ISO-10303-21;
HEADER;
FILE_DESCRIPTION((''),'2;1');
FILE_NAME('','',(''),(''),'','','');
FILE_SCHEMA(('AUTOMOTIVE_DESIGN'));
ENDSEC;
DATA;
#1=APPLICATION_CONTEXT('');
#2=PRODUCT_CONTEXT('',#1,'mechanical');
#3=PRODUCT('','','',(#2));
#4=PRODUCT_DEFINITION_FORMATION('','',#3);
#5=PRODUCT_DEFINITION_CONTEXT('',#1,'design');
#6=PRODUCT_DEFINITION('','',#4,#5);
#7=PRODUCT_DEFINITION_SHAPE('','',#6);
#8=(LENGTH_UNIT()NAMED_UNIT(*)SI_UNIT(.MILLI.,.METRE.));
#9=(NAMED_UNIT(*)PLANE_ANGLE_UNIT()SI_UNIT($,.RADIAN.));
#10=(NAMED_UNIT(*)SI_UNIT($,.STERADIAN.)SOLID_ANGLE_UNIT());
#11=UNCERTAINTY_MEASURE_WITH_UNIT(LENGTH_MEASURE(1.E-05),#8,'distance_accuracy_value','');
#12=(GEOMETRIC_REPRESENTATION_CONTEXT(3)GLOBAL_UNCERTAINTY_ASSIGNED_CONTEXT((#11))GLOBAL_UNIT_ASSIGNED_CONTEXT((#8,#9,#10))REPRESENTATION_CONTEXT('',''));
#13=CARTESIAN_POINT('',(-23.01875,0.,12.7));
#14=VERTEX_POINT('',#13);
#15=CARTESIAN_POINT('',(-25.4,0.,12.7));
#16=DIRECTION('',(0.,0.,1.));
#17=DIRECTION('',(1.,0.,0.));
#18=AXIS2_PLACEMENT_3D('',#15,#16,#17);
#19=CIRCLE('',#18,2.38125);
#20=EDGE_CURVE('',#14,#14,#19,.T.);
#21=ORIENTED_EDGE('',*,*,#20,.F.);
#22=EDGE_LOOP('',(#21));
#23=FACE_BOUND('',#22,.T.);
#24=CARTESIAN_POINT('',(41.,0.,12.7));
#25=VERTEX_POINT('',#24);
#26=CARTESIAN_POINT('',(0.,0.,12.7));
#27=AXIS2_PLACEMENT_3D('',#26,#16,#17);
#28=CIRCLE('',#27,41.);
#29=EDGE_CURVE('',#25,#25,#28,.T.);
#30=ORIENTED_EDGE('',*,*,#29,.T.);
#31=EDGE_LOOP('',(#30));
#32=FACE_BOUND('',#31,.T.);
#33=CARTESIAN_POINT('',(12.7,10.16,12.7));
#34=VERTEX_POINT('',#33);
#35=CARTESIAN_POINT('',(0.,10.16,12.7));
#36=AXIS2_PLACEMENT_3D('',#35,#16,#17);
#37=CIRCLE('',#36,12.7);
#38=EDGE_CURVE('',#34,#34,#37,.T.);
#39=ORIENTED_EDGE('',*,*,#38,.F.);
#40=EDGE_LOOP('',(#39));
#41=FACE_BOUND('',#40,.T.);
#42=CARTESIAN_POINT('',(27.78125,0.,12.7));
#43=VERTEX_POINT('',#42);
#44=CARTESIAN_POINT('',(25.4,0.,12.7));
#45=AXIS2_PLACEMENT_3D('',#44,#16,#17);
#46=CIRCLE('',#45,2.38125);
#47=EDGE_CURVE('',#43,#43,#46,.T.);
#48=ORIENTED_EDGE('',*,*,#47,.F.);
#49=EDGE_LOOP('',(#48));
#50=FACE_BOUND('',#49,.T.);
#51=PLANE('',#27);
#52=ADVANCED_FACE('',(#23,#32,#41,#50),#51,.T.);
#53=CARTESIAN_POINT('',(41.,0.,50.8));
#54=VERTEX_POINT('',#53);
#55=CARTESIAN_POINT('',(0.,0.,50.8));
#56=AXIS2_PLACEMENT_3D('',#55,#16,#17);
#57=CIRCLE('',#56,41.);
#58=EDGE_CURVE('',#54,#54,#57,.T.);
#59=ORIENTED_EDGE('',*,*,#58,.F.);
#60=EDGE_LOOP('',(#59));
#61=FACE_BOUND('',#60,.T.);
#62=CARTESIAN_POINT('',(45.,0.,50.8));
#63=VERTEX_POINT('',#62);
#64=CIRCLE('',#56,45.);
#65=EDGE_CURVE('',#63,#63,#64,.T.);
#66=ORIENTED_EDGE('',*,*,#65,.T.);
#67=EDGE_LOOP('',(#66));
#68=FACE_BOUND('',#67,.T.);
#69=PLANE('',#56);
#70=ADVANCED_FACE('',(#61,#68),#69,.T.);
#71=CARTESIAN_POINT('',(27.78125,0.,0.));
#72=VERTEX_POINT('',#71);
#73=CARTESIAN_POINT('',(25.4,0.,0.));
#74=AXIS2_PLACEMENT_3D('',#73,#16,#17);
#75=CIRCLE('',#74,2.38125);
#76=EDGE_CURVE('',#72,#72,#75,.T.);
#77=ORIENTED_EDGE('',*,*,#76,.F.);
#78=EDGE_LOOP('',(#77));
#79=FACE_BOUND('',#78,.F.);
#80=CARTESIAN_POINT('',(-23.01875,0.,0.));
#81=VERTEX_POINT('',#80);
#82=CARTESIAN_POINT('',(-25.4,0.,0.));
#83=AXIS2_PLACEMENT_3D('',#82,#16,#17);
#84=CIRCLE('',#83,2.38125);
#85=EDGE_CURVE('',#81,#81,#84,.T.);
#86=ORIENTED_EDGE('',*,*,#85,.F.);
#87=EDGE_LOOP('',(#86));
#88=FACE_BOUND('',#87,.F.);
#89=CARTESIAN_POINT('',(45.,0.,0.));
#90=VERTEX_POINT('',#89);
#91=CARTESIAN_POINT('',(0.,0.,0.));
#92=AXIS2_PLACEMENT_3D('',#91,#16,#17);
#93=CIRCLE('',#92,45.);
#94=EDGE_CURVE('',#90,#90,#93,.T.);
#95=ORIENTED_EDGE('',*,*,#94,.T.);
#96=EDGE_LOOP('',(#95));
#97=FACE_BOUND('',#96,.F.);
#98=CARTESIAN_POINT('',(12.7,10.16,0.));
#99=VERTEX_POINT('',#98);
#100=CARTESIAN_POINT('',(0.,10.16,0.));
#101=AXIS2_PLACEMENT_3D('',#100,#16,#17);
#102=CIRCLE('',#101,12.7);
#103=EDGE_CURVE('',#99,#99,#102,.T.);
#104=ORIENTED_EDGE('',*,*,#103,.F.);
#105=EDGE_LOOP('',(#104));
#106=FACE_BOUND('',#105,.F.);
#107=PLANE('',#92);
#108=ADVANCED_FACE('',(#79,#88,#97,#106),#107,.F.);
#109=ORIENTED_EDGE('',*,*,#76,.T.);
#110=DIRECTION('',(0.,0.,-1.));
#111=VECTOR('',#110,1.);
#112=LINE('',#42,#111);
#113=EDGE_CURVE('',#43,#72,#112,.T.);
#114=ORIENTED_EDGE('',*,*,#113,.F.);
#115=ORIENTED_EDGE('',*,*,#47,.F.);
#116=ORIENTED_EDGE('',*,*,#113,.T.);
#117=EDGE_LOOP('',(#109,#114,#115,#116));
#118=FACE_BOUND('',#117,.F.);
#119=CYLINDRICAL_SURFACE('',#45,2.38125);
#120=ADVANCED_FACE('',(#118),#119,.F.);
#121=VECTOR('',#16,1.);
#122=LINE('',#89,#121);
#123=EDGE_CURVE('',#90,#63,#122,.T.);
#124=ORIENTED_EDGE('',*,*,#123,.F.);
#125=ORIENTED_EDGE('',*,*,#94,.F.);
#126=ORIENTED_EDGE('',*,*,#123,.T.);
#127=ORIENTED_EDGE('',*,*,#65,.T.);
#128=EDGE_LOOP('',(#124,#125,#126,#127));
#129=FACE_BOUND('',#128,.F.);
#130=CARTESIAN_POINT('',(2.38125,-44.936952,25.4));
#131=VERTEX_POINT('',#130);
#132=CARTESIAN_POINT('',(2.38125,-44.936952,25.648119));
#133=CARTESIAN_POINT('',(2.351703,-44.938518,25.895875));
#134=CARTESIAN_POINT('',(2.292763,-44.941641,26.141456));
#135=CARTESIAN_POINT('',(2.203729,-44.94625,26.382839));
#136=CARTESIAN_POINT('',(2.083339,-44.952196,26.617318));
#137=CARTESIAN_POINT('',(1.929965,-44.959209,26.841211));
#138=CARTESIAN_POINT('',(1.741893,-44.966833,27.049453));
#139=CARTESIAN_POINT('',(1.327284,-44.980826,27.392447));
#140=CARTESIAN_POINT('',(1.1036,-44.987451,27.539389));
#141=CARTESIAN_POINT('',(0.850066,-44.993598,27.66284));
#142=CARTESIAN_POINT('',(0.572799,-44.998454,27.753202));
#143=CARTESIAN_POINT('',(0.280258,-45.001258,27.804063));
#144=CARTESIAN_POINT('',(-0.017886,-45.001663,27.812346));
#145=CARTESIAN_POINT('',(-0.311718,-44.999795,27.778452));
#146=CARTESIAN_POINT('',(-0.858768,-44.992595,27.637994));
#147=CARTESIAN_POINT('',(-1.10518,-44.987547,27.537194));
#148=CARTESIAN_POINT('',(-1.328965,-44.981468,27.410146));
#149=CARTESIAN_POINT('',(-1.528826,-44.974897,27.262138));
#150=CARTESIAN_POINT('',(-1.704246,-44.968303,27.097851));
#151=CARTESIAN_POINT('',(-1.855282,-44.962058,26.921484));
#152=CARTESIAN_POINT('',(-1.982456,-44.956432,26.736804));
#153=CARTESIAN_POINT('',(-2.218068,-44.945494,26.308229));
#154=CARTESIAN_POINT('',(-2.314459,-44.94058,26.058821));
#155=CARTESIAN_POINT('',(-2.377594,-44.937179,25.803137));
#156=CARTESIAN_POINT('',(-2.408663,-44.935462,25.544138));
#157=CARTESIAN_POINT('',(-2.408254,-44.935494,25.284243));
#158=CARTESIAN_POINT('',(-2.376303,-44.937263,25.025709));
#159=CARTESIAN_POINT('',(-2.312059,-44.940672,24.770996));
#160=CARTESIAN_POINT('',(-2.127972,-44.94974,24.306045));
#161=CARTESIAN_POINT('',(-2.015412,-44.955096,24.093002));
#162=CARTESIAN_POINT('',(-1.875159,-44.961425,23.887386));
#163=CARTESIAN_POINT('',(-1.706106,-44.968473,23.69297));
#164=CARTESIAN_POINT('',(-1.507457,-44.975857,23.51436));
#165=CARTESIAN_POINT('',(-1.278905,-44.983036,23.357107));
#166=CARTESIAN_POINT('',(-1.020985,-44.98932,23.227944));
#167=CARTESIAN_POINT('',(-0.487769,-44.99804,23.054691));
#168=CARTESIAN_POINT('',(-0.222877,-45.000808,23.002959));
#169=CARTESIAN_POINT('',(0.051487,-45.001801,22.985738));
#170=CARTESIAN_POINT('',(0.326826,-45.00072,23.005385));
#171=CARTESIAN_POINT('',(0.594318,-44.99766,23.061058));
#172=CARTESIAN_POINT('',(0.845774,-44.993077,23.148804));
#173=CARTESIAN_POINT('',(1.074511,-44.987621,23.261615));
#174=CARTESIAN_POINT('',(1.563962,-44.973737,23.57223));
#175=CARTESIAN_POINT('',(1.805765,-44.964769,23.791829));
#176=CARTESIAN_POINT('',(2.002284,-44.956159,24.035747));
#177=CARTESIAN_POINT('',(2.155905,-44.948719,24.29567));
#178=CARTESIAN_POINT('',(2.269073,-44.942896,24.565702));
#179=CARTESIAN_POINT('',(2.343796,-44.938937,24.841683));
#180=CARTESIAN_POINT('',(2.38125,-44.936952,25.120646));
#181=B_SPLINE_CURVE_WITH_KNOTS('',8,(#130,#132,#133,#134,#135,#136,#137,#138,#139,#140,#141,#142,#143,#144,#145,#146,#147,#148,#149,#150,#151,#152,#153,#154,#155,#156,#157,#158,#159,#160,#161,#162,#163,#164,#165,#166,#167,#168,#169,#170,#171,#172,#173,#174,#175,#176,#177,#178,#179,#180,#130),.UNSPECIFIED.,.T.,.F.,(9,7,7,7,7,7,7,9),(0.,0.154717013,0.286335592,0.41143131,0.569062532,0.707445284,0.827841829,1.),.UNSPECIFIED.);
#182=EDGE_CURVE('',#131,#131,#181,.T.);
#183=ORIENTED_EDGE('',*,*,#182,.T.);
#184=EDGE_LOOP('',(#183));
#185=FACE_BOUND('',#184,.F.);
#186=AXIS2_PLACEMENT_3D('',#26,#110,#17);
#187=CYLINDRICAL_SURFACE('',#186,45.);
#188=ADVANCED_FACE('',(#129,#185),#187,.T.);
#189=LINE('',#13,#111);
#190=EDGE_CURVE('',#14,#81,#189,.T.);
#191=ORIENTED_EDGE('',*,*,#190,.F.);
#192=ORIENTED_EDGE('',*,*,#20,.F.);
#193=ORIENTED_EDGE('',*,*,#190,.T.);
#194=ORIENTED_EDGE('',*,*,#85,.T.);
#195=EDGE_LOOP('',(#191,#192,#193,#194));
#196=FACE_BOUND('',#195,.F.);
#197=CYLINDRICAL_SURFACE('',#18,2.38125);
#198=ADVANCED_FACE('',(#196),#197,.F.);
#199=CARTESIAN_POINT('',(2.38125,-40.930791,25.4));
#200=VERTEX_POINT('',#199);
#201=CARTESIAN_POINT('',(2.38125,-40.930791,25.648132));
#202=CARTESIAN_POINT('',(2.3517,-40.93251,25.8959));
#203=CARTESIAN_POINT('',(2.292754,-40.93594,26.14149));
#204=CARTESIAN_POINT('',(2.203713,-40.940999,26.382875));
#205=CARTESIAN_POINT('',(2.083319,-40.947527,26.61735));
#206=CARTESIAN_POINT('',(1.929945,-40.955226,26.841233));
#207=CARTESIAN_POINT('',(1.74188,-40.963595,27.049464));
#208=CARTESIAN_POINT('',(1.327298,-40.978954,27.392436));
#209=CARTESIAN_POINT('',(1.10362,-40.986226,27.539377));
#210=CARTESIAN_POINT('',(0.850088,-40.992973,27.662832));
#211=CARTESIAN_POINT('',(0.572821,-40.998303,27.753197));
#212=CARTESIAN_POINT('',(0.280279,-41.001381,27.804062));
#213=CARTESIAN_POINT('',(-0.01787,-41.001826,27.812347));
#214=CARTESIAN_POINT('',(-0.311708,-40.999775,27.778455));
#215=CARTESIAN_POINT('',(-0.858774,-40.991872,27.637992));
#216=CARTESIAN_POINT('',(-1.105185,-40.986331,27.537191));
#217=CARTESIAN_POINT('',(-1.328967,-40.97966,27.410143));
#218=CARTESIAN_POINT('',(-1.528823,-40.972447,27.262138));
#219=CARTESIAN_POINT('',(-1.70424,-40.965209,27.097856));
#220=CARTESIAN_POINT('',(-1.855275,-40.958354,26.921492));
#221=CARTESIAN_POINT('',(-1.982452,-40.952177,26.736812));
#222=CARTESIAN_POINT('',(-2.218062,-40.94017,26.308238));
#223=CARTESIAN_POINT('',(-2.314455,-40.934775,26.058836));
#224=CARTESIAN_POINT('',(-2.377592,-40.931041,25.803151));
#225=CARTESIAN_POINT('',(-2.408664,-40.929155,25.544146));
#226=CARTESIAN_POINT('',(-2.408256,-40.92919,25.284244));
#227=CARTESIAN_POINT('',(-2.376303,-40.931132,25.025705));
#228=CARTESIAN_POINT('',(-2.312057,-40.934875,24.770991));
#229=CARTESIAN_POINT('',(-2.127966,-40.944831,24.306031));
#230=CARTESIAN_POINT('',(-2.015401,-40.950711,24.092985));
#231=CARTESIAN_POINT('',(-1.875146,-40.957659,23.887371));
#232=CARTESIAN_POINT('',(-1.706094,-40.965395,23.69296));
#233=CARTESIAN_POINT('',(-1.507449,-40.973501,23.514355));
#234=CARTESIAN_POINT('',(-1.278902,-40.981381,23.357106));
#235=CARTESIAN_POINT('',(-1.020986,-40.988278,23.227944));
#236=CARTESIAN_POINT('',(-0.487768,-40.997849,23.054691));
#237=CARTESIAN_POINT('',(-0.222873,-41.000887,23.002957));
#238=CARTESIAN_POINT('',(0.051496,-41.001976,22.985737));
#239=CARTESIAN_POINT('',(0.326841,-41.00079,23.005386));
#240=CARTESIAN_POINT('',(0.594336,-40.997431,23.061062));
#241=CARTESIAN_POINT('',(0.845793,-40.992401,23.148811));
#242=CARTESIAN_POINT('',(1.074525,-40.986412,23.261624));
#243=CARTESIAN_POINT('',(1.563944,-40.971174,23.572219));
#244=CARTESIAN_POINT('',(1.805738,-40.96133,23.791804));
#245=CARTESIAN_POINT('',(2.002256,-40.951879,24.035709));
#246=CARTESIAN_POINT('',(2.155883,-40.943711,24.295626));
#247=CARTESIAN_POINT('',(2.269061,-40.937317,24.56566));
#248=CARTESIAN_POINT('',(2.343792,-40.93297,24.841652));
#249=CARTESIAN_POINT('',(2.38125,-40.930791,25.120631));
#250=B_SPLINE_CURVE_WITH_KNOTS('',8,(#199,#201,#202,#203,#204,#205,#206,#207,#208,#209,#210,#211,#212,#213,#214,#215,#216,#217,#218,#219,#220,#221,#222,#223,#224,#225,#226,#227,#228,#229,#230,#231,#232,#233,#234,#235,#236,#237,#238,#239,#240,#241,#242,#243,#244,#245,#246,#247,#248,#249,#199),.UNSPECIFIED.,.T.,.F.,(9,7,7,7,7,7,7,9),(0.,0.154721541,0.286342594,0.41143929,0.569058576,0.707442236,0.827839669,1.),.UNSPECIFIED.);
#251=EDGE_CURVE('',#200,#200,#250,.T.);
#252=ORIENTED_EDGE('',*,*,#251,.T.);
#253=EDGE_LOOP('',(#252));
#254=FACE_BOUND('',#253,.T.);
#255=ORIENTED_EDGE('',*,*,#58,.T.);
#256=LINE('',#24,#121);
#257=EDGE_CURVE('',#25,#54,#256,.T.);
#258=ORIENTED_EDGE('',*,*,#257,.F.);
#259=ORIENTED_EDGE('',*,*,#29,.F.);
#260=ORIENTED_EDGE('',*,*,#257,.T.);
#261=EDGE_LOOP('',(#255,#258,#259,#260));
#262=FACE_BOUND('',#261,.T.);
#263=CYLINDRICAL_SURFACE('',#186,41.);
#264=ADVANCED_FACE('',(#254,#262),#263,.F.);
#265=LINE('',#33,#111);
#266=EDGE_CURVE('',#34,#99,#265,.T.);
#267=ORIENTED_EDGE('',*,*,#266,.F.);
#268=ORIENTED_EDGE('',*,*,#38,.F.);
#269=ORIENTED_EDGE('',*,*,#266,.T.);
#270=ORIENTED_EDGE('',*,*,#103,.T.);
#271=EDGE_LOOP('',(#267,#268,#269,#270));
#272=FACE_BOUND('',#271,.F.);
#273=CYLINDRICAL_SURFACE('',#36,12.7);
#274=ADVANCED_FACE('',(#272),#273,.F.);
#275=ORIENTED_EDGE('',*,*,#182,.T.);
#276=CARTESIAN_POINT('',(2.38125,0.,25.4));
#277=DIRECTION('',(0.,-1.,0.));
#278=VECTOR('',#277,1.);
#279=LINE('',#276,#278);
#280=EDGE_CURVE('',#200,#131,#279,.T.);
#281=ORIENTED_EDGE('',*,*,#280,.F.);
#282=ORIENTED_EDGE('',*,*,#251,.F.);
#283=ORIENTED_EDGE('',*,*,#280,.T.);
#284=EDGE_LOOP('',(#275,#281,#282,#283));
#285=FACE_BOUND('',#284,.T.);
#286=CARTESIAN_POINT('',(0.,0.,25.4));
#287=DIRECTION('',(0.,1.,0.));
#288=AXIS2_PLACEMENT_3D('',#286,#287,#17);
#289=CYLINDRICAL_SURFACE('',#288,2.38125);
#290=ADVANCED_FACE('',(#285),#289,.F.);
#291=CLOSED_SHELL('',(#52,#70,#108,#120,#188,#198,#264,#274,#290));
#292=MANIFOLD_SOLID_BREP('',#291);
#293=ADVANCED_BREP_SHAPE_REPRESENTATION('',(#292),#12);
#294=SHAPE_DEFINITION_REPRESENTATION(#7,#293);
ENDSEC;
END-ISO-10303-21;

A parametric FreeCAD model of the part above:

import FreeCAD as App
import Part
import Sketcher
Q = App.Units.Quantity

doc = App.newDocument("Part")
body = doc.addObject("PartDesign::Body", "Body")

sketch1 = body.newObject("Sketcher::SketchObject", "Sketch")
sketch1.AttachmentSupport = (doc.getObject("XY_Plane"), [""])
sketch1.MapMode = "FlatFace"
sketch1.addGeometry(Part.Circle(App.Vector(0, 0, 0), App.Vector(0, 0, 1), 45), False)
sketch1.addConstraint(Sketcher.Constraint("Coincident", 0, 3, -1, 1))
sketch1.addConstraint(Sketcher.Constraint("Diameter", 0, Q("90 mm")))
pad1 = body.newObject("PartDesign::Pad", "Pad")
pad1.Profile = sketch1
pad1.Length = Q("0.5 in")

sketch2 = body.newObject("Sketcher::SketchObject", "Sketch001")
sketch2.AttachmentSupport = (doc.getObject("XY_Plane"), [""])
sketch2.MapMode = "FlatFace"
sketch2.AttachmentOffset = App.Placement(App.Vector(0, 0, 0.5 * 25.4), App.Rotation())
sketch2.addGeometry(Part.Circle(App.Vector(0, 0, 0), App.Vector(0, 0, 1), 45), False)
sketch2.addGeometry(Part.Circle(App.Vector(0, 0, 0), App.Vector(0, 0, 1), 41), False)
sketch2.addConstraint(Sketcher.Constraint("Coincident", 0, 3, -1, 1))
sketch2.addConstraint(Sketcher.Constraint("Coincident", 1, 3, -1, 1))
sketch2.addConstraint(Sketcher.Constraint("Diameter", 0, Q("90 mm")))
sketch2.addConstraint(Sketcher.Constraint("Diameter", 1, Q("82 mm")))
pad2 = body.newObject("PartDesign::Pad", "Pad001")
pad2.Profile = sketch2
pad2.Length = Q("1.5 in")

sketch3 = body.newObject("Sketcher::SketchObject", "Sketch002")
sketch3.AttachmentSupport = (doc.getObject("XZ_Plane"), [""])
sketch3.MapMode = "FlatFace"
sketch3.addGeometry(Part.Circle(App.Vector(0, 25.4, 0), App.Vector(0, 0, 1), 2.38125), False)
sketch3.addConstraint(Sketcher.Constraint("PointOnObject", 0, 3, -2))
sketch3.addConstraint(Sketcher.Constraint("Diameter", 0, Q("0.1875 in")))
sketch3.addConstraint(Sketcher.Constraint("DistanceY", -1, 1, 0, 3, Q("1 in")))
pocket1 = body.newObject("PartDesign::Pocket", "Pocket")
pocket1.Profile = sketch3
pocket1.Length = Q("3.13 in")
pocket1.Reversed = True

sketch4 = body.newObject("Sketcher::SketchObject", "Sketch003")
sketch4.AttachmentSupport = (doc.getObject("XY_Plane"), [""])
sketch4.MapMode = "FlatFace"
sketch4.AttachmentOffset = App.Placement(App.Vector(0, 0, 0.5 * 25.4), App.Rotation())
sketch4.addGeometry(Part.Circle(App.Vector(-25.4, 0, 0), App.Vector(0, 0, 1), 2.38125), False)
sketch4.addGeometry(Part.Circle(App.Vector(25.4, 0, 0), App.Vector(0, 0, 1), 2.38125), False)
sketch4.addConstraint(Sketcher.Constraint("Equal", 0, 1))
sketch4.addConstraint(Sketcher.Constraint("Symmetric", 0, 3, 1, 3, -1, 1))
sketch4.addConstraint(Sketcher.Constraint("PointOnObject", 0, 3, -1))
sketch4.addConstraint(Sketcher.Constraint("Diameter", 0, Q("0.1875 in")))
sketch4.addConstraint(Sketcher.Constraint("DistanceX", 0, 3, -1, 1, Q("1 in")))
pocket2 = body.newObject("PartDesign::Pocket", "Pocket001")
pocket2.Profile = sketch4
pocket2.Length = Q("1 in")

sketch5 = body.newObject("Sketcher::SketchObject", "Sketch004")
sketch5.AttachmentSupport = (doc.getObject("XY_Plane"), [""])
sketch5.MapMode = "FlatFace"
sketch5.AttachmentOffset = App.Placement(App.Vector(0, 0, 0.5 * 25.4), App.Rotation())
sketch5.addGeometry(Part.Circle(App.Vector(0, 10.16, 0), App.Vector(0, 0, 1), 12.7), False)
sketch5.addConstraint(Sketcher.Constraint("PointOnObject", 0, 3, -2))
sketch5.addConstraint(Sketcher.Constraint("Diameter", 0, Q("1 in")))
sketch5.addConstraint(Sketcher.Constraint("DistanceY", -1, 1, 0, 3, Q("0.4 in")))
pocket3 = body.newObject("PartDesign::Pocket", "Pocket002")
pocket3.Profile = sketch5
pocket3.Length = Q("1 in")

doc.recompute()
